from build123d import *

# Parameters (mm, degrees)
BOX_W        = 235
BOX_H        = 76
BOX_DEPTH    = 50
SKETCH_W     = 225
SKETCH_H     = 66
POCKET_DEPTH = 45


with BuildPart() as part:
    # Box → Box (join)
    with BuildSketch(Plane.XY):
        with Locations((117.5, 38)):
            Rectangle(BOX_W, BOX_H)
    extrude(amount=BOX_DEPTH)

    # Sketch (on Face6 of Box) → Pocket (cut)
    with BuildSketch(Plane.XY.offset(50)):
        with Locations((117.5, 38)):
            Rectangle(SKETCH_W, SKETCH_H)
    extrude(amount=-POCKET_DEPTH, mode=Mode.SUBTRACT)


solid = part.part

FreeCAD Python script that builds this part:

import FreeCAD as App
import Part
import Sketcher
from FreeCAD import Vector
Q = App.Units.Quantity

doc = App.newDocument("Part")
params = doc.addObject("Spreadsheet::Sheet", "Params")
for row, (alias, value) in enumerate([
    ("sketch1_width", "235 mm"),
    ("sketch1_height", "76 mm"),
    ("pad1_length", "50 mm"),
    ("sketch2_width", "225 mm"),
    ("sketch2_height", "66 mm"),
    ("pocket1_length", "45 mm"),
], start=1):
    params.set(f"A{row}", alias)
    params.set(f"B{row}", "=" + value)
    params.setAlias(f"B{row}", alias)

body = doc.addObject("PartDesign::Body", "Body")

sketch1 = body.newObject("Sketcher::SketchObject", "Sketch")
sketch1.AttachmentSupport = (doc.getObject("XY_Plane"), [""])
sketch1.MapMode = "FlatFace"
sketch1.addGeometry([
    Part.LineSegment(Vector(0, 76, 0), Vector(0, 0, 0)),
    Part.LineSegment(Vector(0, 0, 0), Vector(235, 0, 0)),
    Part.LineSegment(Vector(235, 0, 0), Vector(235, 76, 0)),
    Part.LineSegment(Vector(235, 76, 0), Vector(0, 76, 0)),
], False)
sketch1.addConstraint([
    Sketcher.Constraint("Coincident", 0, 2, 1, 1),
    Sketcher.Constraint("Coincident", 1, 2, 2, 1),
    Sketcher.Constraint("Coincident", 2, 2, 3, 1),
    Sketcher.Constraint("Coincident", 3, 2, 0, 1),
    Sketcher.Constraint("Vertical", 0),
    Sketcher.Constraint("Horizontal", 1),
    Sketcher.Constraint("Vertical", 2),
    Sketcher.Constraint("Horizontal", 3),
    Sketcher.Constraint("Coincident", 0, 2, -1, 1),
    Sketcher.Constraint("DistanceX", 1, 1, 1, 2, Q("235 mm")),
    Sketcher.Constraint("DistanceY", 0, 2, 0, 1, Q("76 mm")),
])
sketch1.setExpression("Constraints[9]", "Params.sketch1_width")
sketch1.setExpression("Constraints[10]", "Params.sketch1_height")
pad1 = body.newObject("PartDesign::Pad", "Pad")
pad1.Profile = sketch1
pad1.setExpression("Length", "Params.pad1_length")

sketch2 = body.newObject("Sketcher::SketchObject", "Sketch001")
sketch2.AttachmentSupport = (doc.getObject("XY_Plane"), [""])
sketch2.MapMode = "FlatFace"
sketch2.AttachmentOffset = App.Placement(Vector(0, 0, 50), App.Rotation())
sketch2.addGeometry([
    Part.LineSegment(Vector(5, 71, 0), Vector(5, 5, 0)),
    Part.LineSegment(Vector(5, 5, 0), Vector(230, 5, 0)),
    Part.LineSegment(Vector(230, 5, 0), Vector(230, 71, 0)),
    Part.LineSegment(Vector(230, 71, 0), Vector(5, 71, 0)),
], False)
sketch2.addConstraint([
    Sketcher.Constraint("Coincident", 0, 2, 1, 1),
    Sketcher.Constraint("Coincident", 1, 2, 2, 1),
    Sketcher.Constraint("Coincident", 2, 2, 3, 1),
    Sketcher.Constraint("Coincident", 3, 2, 0, 1),
    Sketcher.Constraint("Vertical", 0),
    Sketcher.Constraint("Horizontal", 1),
    Sketcher.Constraint("Vertical", 2),
    Sketcher.Constraint("Horizontal", 3),
    Sketcher.Constraint("DistanceX", 1, 1, 1, 2, Q("225 mm")),
    Sketcher.Constraint("DistanceY", 0, 2, 0, 1, Q("66 mm")),
    Sketcher.Constraint("DistanceX", -1, 1, 0, 2, Q("5 mm")),
    Sketcher.Constraint("DistanceY", -1, 1, 0, 2, Q("5 mm")),
])
sketch2.setExpression("Constraints[8]", "Params.sketch2_width")
sketch2.setExpression("Constraints[9]", "Params.sketch2_height")
pocket1 = body.newObject("PartDesign::Pocket", "Pocket")
pocket1.Profile = sketch2
pocket1.setExpression("Length", "Params.pocket1_length")

doc.recompute()
